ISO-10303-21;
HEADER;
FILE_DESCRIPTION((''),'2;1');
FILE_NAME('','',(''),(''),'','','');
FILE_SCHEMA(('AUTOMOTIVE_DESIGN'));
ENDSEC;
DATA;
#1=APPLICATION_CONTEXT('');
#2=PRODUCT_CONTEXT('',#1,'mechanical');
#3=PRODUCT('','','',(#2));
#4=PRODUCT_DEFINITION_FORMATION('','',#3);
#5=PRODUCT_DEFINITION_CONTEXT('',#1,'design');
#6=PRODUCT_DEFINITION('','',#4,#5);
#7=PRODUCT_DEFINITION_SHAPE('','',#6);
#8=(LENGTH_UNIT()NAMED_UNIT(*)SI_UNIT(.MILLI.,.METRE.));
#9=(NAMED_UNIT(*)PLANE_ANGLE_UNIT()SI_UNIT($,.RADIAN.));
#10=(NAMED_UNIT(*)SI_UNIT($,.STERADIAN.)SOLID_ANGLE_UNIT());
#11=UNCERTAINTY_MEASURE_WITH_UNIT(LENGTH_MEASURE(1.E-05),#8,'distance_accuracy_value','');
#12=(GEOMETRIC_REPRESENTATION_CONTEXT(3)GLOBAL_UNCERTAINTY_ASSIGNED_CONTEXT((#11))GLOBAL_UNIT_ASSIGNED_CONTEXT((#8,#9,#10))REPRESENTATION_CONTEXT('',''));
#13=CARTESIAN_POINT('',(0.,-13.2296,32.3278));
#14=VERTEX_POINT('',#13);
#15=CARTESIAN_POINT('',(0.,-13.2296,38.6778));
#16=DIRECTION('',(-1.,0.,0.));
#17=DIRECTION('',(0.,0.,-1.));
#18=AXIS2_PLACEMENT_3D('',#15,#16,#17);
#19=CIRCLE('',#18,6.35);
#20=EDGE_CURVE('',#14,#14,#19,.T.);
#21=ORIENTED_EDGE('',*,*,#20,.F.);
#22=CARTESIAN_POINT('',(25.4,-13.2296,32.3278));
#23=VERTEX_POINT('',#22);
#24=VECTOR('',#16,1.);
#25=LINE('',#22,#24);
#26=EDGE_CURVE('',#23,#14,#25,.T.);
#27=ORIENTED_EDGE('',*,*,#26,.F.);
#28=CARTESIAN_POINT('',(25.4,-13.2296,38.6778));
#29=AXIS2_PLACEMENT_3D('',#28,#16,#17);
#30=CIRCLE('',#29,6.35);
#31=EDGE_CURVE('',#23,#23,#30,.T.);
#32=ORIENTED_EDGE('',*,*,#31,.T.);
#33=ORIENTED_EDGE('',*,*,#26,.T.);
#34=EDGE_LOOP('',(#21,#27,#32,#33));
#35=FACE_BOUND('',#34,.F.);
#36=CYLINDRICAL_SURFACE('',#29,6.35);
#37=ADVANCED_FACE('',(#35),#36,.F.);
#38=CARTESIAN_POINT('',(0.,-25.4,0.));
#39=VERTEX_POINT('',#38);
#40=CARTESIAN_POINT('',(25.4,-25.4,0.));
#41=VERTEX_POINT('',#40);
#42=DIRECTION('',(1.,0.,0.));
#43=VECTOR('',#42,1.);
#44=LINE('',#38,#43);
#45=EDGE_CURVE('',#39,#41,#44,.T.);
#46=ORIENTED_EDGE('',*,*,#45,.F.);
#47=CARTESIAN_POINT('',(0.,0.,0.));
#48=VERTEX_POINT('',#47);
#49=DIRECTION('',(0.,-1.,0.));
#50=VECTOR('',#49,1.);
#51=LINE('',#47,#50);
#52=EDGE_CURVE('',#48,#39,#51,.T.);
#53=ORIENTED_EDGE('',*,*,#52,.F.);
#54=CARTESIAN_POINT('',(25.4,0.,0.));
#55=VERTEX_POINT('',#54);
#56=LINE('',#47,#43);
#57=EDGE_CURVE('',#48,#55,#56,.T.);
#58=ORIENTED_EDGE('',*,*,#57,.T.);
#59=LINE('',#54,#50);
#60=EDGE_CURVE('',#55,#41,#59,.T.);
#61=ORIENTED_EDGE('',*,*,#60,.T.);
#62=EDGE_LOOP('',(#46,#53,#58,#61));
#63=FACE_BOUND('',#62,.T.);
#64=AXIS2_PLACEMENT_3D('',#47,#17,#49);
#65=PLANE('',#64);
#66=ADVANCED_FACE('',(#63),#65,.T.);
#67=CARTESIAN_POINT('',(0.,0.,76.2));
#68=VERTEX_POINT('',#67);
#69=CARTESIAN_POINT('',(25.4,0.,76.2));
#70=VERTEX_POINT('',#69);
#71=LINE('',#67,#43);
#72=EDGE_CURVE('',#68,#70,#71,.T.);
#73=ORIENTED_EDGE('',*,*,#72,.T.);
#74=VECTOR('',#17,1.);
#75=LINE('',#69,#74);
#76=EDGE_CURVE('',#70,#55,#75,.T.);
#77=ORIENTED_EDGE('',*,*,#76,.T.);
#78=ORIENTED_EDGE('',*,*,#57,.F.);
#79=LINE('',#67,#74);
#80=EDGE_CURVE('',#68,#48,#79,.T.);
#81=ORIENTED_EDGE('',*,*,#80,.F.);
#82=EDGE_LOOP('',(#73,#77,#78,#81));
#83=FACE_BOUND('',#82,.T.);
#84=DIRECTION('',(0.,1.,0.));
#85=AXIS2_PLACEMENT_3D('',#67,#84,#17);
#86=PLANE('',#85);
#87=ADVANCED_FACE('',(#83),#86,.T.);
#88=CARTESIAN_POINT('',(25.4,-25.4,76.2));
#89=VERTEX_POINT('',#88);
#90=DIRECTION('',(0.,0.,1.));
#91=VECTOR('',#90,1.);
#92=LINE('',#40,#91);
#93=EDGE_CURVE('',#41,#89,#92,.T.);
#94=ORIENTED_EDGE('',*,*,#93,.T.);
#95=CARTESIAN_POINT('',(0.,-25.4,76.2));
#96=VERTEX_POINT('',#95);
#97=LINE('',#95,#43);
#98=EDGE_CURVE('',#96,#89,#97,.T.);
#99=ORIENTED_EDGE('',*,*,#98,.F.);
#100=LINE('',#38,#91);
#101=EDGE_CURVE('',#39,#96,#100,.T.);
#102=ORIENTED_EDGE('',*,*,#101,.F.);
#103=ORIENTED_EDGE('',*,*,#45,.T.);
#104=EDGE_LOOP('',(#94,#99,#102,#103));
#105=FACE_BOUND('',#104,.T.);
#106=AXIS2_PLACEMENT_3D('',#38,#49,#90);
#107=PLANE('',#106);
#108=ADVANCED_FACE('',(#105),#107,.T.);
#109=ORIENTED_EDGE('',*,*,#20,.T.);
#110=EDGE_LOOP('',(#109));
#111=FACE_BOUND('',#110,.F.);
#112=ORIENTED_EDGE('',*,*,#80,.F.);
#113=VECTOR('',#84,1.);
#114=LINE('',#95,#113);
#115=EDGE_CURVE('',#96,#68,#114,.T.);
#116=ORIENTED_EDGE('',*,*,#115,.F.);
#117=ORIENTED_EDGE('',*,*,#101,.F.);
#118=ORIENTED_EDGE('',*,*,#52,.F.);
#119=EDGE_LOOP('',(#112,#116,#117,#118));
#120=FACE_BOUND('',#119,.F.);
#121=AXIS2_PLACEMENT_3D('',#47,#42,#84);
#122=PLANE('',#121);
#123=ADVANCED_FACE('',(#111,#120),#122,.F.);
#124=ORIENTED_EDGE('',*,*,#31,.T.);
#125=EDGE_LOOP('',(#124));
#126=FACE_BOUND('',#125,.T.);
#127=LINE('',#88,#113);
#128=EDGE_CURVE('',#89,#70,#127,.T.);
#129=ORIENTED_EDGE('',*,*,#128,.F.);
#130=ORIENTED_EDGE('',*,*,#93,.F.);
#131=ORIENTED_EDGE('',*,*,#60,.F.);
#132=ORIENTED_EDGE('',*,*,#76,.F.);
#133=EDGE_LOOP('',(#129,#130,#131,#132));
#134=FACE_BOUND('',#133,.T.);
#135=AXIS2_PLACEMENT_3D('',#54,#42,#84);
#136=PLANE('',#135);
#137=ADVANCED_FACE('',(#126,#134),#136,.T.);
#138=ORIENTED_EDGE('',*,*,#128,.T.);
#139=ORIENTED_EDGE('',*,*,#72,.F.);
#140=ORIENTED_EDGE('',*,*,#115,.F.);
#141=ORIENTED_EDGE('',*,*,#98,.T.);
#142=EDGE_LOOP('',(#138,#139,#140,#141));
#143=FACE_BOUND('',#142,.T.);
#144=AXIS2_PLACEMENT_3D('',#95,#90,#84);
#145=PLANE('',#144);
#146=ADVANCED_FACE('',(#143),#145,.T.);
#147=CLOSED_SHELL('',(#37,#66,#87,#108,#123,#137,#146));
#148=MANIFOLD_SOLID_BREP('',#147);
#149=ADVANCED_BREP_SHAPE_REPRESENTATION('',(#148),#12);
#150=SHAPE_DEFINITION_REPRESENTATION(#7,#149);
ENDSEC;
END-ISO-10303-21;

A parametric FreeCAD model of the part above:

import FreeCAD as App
import Part
import Sketcher

V = App.Vector
Q = App.Units.Quantity


def add_polygon(sketch, points):
    """Adds a closed chain of lines whose ends are joined by coincident constraints."""
    first, n = sketch.GeometryCount, len(points)
    for a, b in zip(points, points[1:] + points[:1]):
        sketch.addGeometry(Part.LineSegment(App.Vector(*a, 0), App.Vector(*b, 0)), False)
    for i in range(n):
        sketch.addConstraint(Sketcher.Constraint("Coincident", first + i, 2, first + (i + 1) % n, 1))

doc = App.newDocument("Part")
body = doc.addObject("PartDesign::Body", "Body")

# Sketch on YZ plane
sketch1 = body.newObject("Sketcher::SketchObject", "Sketch")
sketch1.AttachmentSupport = (doc.getObject("YZ_Plane"), [""])
sketch1.MapMode = "FlatFace"
add_polygon(sketch1, [(-25, 0), (0, 0), (0, 76), (-25, 76)])  # lines 0-3
sketch1.addConstraint(Sketcher.Constraint("Horizontal", 0))
sketch1.addConstraint(Sketcher.Constraint("Vertical", 1))
sketch1.addConstraint(Sketcher.Constraint("Horizontal", 2))
sketch1.addConstraint(Sketcher.Constraint("Vertical", 3))
sketch1.addConstraint(Sketcher.Constraint("Coincident", 0, 2, -1, 1))
sketch1.addConstraint(Sketcher.Constraint("DistanceX", 0, 1, 0, 2, Q("1 in")))
sketch1.addConstraint(Sketcher.Constraint("DistanceY", 1, 1, 1, 2, Q("3 in")))
pad1 = body.newObject("PartDesign::Pad", "Pad")
pad1.Profile = sketch1
pad1.Length = Q("1 in")

# Sketch on YZ plane
sketch2 = body.newObject("Sketcher::SketchObject", "Sketch001")
sketch2.AttachmentSupport = (doc.getObject("YZ_Plane"), [""])
sketch2.MapMode = "FlatFace"
sketch2.AttachmentOffset = App.Placement(V(0, 0, 1 * 25.4), App.Rotation())
sketch2.addGeometry(Part.Circle(V(-13, 39, 0), V(0, 0, 1), 6), False)
sketch2.addConstraint(Sketcher.Constraint("Diameter", 0, Q("0.5 in")))
sketch2.addConstraint(Sketcher.Constraint("DistanceX", 0, 3, -1, 1, Q("13.2296 mm")))
sketch2.addConstraint(Sketcher.Constraint("DistanceY", -1, 1, 0, 3, Q("38.6778 mm")))
doc.recompute()
hole = body.newObject("PartDesign::Hole", "Hole")
hole.Profile = sketch2
hole.ThreadType = "None"
hole.Diameter = Q("0.5 in")
hole.DepthType = "ThroughAll"

doc.recompute()
